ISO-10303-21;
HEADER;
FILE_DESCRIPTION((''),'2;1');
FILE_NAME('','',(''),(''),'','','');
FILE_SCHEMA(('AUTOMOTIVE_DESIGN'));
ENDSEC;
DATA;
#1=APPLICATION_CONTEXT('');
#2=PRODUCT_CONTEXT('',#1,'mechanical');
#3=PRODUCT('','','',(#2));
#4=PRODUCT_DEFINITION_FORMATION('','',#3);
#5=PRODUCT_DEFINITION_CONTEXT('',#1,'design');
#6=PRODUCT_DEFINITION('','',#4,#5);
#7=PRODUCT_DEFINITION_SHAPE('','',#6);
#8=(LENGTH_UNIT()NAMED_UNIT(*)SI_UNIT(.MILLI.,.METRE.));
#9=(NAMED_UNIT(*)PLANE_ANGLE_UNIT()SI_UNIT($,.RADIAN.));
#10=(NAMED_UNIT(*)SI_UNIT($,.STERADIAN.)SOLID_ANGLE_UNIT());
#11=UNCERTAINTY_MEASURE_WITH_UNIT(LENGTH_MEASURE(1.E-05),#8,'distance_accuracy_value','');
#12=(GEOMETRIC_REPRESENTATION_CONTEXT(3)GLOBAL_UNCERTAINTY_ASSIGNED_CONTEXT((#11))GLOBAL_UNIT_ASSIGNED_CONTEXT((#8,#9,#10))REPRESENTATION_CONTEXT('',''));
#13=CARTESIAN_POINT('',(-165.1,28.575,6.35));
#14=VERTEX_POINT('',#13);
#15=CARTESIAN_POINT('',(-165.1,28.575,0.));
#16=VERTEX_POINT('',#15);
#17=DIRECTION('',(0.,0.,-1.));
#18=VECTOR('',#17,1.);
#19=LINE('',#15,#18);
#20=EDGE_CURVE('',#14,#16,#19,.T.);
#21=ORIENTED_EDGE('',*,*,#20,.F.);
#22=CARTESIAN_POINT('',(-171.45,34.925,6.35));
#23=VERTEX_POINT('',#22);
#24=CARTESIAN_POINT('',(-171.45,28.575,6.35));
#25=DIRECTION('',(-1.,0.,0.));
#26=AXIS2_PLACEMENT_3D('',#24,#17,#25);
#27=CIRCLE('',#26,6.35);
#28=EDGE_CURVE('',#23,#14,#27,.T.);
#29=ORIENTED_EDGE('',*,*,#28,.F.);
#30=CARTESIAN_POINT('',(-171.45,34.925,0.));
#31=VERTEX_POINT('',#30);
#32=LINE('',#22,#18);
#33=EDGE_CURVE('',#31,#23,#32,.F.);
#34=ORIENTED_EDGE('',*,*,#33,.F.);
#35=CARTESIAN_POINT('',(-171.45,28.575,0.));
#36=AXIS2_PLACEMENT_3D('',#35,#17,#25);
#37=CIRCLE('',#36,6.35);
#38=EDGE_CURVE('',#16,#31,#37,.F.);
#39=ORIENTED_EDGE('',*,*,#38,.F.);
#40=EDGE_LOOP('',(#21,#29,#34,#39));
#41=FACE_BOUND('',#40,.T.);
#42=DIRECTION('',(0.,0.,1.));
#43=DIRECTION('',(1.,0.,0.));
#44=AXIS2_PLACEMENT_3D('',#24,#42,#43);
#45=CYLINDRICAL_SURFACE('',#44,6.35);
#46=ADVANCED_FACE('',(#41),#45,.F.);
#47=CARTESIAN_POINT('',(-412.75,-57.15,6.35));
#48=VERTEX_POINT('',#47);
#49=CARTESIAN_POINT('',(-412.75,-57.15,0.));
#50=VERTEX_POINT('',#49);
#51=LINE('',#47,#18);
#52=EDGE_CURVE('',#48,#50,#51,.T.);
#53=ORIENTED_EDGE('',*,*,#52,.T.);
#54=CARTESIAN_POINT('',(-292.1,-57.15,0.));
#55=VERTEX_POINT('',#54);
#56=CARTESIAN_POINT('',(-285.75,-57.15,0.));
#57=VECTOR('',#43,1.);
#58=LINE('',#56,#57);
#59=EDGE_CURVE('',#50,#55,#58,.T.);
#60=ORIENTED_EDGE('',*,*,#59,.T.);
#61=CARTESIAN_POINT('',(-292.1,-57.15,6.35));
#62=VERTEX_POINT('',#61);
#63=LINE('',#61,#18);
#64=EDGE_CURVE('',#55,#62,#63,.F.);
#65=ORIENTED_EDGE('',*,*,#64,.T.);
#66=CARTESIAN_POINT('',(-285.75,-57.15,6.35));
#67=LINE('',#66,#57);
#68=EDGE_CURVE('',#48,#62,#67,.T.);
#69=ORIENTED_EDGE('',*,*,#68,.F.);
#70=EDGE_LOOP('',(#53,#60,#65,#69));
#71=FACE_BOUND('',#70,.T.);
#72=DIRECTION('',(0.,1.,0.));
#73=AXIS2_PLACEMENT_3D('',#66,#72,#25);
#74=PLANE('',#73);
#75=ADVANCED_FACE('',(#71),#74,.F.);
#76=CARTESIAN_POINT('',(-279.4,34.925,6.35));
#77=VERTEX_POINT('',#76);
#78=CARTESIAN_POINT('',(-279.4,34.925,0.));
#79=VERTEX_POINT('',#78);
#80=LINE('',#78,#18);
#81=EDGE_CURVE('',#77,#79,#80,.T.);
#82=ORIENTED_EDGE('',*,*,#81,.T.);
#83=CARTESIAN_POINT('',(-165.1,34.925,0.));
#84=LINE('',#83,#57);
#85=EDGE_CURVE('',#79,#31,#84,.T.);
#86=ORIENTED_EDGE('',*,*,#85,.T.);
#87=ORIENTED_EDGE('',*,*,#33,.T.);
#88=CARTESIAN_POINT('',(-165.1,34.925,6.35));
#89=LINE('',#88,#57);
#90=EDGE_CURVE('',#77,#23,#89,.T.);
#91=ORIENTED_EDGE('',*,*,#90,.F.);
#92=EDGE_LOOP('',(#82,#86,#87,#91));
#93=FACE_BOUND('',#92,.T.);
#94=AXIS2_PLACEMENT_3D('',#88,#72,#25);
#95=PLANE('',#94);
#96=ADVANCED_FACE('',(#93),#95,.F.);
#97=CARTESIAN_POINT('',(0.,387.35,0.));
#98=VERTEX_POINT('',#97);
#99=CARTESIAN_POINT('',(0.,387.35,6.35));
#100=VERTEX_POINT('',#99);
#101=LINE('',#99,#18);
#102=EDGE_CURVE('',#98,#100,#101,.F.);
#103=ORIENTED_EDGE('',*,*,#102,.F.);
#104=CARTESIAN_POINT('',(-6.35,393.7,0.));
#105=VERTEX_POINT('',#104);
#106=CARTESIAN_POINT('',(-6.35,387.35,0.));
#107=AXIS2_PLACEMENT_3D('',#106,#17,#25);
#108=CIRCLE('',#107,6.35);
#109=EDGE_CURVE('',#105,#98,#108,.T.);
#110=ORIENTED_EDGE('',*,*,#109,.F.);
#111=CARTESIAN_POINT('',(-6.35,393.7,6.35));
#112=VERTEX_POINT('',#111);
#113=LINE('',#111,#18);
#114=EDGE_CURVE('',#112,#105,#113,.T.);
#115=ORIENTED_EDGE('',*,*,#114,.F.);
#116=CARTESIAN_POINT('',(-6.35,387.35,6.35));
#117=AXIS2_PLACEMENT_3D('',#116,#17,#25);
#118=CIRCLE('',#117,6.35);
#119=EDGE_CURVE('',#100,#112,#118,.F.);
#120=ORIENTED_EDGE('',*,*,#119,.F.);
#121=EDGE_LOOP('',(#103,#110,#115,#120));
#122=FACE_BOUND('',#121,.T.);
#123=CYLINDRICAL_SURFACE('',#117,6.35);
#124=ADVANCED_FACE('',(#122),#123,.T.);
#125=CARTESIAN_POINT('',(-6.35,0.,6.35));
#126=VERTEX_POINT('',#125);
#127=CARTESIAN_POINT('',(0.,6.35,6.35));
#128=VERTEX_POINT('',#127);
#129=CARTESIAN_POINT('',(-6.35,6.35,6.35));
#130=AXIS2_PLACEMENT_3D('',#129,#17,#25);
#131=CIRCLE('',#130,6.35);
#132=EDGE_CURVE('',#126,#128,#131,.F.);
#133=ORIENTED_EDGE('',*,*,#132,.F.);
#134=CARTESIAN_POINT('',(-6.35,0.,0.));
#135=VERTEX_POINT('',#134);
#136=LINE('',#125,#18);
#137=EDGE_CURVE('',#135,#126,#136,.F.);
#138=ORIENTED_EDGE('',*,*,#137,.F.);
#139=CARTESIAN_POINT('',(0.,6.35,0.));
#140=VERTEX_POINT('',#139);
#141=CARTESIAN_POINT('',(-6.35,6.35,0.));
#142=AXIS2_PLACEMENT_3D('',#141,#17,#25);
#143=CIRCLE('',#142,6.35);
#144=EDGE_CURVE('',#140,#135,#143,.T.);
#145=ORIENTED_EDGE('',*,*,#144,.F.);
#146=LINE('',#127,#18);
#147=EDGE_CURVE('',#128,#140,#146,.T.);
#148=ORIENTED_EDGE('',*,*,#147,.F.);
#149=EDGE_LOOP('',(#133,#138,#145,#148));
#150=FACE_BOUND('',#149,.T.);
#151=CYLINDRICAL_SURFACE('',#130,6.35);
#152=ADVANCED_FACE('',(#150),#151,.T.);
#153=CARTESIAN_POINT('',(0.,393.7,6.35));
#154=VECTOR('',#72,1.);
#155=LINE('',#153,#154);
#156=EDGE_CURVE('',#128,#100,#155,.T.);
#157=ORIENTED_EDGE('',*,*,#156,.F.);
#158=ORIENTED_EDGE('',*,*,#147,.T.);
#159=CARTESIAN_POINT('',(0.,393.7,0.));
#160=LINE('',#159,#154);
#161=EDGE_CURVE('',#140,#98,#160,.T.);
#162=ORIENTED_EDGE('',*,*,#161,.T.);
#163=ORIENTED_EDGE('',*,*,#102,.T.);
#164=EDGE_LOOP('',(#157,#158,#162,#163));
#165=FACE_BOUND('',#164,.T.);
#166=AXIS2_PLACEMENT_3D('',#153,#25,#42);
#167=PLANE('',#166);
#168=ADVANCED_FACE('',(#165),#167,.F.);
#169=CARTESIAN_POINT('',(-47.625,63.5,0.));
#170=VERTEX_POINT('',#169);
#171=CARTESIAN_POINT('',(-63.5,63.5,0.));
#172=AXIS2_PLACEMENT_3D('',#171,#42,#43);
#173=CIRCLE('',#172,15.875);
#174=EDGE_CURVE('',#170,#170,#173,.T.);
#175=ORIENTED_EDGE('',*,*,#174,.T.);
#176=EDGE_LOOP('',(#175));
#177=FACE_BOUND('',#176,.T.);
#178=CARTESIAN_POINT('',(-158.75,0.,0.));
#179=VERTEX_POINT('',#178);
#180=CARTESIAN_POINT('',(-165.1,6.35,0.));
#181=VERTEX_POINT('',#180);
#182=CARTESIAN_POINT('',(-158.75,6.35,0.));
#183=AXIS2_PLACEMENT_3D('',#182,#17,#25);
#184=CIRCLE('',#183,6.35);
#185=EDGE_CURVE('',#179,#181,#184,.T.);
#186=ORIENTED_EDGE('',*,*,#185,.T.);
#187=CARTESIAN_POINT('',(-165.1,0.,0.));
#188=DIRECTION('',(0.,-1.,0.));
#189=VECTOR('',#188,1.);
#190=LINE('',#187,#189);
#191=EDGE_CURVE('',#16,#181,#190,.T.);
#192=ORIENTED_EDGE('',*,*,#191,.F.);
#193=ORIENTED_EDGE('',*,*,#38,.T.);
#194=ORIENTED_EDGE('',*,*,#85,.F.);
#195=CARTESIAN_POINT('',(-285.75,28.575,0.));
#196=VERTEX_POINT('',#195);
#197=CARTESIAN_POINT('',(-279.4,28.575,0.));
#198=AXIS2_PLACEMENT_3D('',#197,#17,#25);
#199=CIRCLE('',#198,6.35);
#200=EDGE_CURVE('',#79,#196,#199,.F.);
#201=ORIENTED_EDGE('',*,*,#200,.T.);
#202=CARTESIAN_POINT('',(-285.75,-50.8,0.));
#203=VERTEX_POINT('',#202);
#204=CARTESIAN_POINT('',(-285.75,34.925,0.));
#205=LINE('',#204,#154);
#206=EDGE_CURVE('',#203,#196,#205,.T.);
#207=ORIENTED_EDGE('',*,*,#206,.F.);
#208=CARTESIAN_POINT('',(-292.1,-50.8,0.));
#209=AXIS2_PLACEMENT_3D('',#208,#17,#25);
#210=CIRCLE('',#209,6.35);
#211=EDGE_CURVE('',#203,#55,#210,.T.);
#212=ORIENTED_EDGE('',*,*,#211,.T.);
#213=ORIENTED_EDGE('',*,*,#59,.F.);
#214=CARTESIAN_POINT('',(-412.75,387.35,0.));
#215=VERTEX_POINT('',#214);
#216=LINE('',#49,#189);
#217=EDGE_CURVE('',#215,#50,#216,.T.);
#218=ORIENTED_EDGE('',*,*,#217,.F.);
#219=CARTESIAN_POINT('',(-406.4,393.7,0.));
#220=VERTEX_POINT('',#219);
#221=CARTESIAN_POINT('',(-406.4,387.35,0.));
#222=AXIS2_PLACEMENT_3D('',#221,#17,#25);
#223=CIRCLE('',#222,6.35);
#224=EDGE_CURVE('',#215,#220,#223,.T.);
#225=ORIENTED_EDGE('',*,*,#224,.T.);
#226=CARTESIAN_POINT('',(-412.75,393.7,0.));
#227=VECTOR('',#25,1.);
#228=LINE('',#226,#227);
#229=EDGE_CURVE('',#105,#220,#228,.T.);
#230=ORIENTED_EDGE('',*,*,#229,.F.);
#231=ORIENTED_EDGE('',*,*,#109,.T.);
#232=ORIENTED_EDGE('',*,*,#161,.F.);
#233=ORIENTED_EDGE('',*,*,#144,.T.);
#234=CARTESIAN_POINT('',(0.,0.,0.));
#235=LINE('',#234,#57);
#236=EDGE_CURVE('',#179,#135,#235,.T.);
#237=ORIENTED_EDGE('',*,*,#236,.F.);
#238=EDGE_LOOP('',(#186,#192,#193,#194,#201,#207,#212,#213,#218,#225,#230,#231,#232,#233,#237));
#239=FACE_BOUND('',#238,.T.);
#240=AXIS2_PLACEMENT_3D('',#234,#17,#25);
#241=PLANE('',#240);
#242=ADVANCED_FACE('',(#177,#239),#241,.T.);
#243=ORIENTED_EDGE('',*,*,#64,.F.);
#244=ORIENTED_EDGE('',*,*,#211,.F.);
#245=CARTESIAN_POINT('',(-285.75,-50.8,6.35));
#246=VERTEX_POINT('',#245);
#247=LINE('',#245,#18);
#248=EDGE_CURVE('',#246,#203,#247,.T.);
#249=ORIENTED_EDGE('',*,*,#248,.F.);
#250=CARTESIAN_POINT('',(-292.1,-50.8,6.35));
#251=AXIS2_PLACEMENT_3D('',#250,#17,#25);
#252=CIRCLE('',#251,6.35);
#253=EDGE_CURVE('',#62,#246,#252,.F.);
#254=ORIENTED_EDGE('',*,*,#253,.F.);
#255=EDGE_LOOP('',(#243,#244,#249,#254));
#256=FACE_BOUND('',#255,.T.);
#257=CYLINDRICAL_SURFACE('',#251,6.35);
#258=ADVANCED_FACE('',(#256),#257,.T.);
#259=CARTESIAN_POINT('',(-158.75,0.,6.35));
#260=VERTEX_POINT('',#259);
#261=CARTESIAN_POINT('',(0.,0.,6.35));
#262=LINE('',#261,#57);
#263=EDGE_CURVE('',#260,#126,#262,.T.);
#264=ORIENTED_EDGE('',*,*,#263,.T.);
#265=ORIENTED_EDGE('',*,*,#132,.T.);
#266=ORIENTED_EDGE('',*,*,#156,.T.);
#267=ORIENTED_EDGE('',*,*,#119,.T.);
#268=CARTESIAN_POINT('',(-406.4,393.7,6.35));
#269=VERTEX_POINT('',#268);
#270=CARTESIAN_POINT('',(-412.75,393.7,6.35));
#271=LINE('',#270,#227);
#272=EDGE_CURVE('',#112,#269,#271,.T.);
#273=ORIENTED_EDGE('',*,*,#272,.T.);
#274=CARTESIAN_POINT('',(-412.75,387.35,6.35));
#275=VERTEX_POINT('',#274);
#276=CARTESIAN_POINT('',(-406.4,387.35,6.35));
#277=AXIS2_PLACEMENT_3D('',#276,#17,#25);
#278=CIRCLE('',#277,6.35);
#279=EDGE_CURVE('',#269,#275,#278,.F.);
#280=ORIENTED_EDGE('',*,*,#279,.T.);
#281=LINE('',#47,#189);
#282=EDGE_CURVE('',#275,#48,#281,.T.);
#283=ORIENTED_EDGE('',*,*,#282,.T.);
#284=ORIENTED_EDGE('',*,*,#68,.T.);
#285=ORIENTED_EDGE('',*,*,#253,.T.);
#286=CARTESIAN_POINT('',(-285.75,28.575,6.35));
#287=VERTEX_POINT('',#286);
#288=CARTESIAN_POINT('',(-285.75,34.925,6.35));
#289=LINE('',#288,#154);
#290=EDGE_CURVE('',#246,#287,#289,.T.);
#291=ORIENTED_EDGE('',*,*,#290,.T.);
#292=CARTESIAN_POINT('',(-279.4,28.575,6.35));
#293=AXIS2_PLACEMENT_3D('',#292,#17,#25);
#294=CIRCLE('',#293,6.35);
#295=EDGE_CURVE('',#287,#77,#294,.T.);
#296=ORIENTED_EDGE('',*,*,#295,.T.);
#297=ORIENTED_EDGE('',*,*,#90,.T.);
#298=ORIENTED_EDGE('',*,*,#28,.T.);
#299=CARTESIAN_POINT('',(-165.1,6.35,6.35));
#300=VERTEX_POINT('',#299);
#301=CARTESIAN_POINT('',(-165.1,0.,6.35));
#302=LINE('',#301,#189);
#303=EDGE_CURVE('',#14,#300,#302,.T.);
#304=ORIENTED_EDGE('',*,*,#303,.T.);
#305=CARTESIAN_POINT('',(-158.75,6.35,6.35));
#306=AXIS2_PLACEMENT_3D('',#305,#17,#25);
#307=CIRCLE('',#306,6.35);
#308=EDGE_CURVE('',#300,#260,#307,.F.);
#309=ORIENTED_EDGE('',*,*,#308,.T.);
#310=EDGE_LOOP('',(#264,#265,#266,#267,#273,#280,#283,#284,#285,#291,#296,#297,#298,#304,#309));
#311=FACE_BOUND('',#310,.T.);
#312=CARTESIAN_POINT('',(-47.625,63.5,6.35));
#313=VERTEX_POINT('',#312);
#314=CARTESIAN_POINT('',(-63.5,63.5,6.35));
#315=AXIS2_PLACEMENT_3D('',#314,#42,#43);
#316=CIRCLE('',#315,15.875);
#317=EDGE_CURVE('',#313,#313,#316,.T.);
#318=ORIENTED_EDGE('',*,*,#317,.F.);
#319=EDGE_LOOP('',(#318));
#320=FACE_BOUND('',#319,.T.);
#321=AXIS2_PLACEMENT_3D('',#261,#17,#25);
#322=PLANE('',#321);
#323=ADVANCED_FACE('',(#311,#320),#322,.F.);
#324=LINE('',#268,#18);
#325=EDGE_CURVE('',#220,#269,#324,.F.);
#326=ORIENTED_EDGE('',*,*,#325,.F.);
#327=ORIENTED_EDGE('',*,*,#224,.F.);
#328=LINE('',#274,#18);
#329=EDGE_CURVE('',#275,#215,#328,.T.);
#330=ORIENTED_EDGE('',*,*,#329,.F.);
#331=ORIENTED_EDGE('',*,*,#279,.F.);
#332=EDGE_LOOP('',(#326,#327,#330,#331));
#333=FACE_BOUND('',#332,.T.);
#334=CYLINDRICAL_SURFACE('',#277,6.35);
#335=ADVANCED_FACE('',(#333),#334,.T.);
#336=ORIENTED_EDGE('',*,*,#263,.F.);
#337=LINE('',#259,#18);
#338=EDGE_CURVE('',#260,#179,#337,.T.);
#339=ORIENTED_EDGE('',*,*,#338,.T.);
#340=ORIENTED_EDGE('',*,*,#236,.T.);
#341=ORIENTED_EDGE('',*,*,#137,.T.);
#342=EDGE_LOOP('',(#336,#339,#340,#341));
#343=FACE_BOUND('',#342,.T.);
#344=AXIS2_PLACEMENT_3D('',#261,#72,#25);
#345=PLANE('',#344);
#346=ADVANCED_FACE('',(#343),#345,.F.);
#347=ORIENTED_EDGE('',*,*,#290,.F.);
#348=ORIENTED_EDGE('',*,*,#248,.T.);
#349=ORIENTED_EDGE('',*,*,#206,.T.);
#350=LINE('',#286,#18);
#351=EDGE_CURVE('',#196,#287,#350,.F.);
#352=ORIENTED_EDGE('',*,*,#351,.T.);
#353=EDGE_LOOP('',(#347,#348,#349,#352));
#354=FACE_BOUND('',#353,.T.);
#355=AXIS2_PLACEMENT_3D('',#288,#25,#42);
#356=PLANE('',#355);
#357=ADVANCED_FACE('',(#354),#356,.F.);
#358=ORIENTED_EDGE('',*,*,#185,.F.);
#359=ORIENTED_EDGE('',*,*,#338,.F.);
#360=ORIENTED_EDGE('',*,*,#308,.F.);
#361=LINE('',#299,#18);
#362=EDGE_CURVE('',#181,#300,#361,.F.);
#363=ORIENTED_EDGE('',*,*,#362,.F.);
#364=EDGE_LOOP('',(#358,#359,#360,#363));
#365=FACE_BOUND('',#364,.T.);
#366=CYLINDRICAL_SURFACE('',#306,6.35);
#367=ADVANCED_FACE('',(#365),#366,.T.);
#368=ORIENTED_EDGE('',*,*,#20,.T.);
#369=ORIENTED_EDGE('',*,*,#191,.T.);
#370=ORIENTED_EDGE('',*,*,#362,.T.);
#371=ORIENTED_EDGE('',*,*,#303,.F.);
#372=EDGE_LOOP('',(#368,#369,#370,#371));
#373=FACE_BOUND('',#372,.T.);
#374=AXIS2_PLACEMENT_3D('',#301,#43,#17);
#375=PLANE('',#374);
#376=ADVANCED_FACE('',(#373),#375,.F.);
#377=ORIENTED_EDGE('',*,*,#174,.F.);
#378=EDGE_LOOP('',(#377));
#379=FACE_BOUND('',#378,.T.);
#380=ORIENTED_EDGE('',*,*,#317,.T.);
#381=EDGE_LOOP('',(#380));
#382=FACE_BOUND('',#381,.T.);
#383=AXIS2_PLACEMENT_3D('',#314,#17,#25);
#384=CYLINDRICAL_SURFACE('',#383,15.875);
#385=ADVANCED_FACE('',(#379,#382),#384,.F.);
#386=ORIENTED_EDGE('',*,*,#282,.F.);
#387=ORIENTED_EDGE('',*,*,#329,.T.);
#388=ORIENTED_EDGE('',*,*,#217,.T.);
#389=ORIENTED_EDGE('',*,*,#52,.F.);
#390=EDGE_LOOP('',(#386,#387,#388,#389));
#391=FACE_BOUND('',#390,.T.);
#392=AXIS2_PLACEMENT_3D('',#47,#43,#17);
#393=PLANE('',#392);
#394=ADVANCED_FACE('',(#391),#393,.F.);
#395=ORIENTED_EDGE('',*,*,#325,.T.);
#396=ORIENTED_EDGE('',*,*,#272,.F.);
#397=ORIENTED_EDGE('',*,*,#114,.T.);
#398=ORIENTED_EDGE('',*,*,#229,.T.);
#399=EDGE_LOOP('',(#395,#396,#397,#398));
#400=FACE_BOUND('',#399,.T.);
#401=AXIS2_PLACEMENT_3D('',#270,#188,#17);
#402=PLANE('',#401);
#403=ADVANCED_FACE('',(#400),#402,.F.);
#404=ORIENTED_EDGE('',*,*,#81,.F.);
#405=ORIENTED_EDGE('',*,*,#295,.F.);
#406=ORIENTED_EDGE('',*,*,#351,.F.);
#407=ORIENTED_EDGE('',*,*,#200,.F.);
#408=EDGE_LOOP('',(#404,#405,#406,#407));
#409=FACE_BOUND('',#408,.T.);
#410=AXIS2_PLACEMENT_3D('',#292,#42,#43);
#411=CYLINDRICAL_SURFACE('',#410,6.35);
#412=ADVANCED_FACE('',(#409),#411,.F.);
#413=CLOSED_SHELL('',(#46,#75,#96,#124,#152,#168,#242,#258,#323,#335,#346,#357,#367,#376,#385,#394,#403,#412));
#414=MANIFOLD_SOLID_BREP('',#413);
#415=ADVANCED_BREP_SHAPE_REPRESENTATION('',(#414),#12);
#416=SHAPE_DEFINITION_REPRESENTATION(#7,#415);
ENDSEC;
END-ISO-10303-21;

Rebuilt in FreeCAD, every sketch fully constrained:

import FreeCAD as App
import Part
import Sketcher
from FreeCAD import Vector
Q = App.Units.Quantity


def edges_at(feature, points):
    """Names of the edges that pass closest to the given points."""
    edges = feature.Shape.Edges
    near = lambda p: min(range(len(edges)), key=lambda i: edges[i].distToShape(Part.Vertex(*p))[0])
    return sorted({f"Edge{near(p) + 1}" for p in points})

doc = App.newDocument("Part")
body = doc.addObject("PartDesign::Body", "Body")

sketch1 = body.newObject("Sketcher::SketchObject", "Sketch")
sketch1.AttachmentSupport = (doc.getObject("XY_Plane"), [""])
sketch1.MapMode = "FlatFace"
sketch1.addGeometry(Part.LineSegment(Vector(-165, 0, 0), Vector(0, 0, 0)), False)
sketch1.addGeometry(Part.LineSegment(Vector(0, 0, 0), Vector(0, 394, 0)), False)
sketch1.addGeometry(Part.LineSegment(Vector(0, 394, 0), Vector(-413, 394, 0)), False)
sketch1.addGeometry(Part.LineSegment(Vector(-413, 394, 0), Vector(-413, -57, 0)), False)
sketch1.addGeometry(Part.LineSegment(Vector(-413, -57, 0), Vector(-286, -57, 0)), False)
sketch1.addGeometry(Part.LineSegment(Vector(-286, -57, 0), Vector(-286, 35, 0)), False)
sketch1.addGeometry(Part.LineSegment(Vector(-286, 35, 0), Vector(-165, 35, 0)), False)
sketch1.addGeometry(Part.LineSegment(Vector(-165, 35, 0), Vector(-165, 0, 0)), False)
sketch1.addGeometry(Part.Circle(Vector(-64, 64, 0), Vector(0, 0, 1), 16), False)
sketch1.addConstraint(Sketcher.Constraint("Coincident", 0, 2, 1, 1))
sketch1.addConstraint(Sketcher.Constraint("Coincident", 1, 2, 2, 1))
sketch1.addConstraint(Sketcher.Constraint("Coincident", 2, 2, 3, 1))
sketch1.addConstraint(Sketcher.Constraint("Coincident", 3, 2, 4, 1))
sketch1.addConstraint(Sketcher.Constraint("Coincident", 4, 2, 5, 1))
sketch1.addConstraint(Sketcher.Constraint("Coincident", 5, 2, 6, 1))
sketch1.addConstraint(Sketcher.Constraint("Coincident", 6, 2, 7, 1))
sketch1.addConstraint(Sketcher.Constraint("Coincident", 7, 2, 0, 1))
sketch1.addConstraint(Sketcher.Constraint("Horizontal", 0))
sketch1.addConstraint(Sketcher.Constraint("Vertical", 1))
sketch1.addConstraint(Sketcher.Constraint("Horizontal", 2))
sketch1.addConstraint(Sketcher.Constraint("Vertical", 3))
sketch1.addConstraint(Sketcher.Constraint("Horizontal", 4))
sketch1.addConstraint(Sketcher.Constraint("Vertical", 5))
sketch1.addConstraint(Sketcher.Constraint("Horizontal", 6))
sketch1.addConstraint(Sketcher.Constraint("Vertical", 7))
sketch1.addConstraint(Sketcher.Constraint("Coincident", 0, 2, -1, 1))
sketch1.addConstraint(Sketcher.Constraint("Diameter", 8, Q("1.25 in")))
sketch1.addConstraint(Sketcher.Constraint("DistanceX", 4, 1, 4, 2, Q("5 in")))
sketch1.addConstraint(Sketcher.Constraint("DistanceX", 0, 1, 0, 2, Q("6.5 in")))
sketch1.addConstraint(Sketcher.Constraint("DistanceY", 1, 1, 1, 2, Q("15.5 in")))
sketch1.addConstraint(Sketcher.Constraint("DistanceY", 8, 3, 1, 2, Q("13 in")))
sketch1.addConstraint(Sketcher.Constraint("DistanceX", 6, 2, 8, 3, Q("4 in")))
sketch1.addConstraint(Sketcher.Constraint("DistanceX", 2, 2, 2, 1, Q("16.25 in")))
sketch1.addConstraint(Sketcher.Constraint("DistanceY", 3, 2, 3, 1, Q("17.75 in")))
sketch1.addConstraint(Sketcher.Constraint("DistanceY", 5, 1, 5, 2, Q("3.625 in")))
pad1 = body.newObject("PartDesign::Pad", "Pad")
pad1.Profile = sketch1
pad1.Length = Q("0.25 in")
doc.recompute()

fillet = body.newObject("PartDesign::Fillet", "Fillet")
fillet.Base = (pad1, edges_at(pad1, [
    (-412.75, 393.7, 3.175),
    (0, 393.7, 3.175),
    (0, 0, 3.175),
    (-165.1, 0, 3.175),
    (-165.1, 34.925, 3.175),
    (-285.75, 34.925, 3.175),
    (-285.75, -57.15, 3.175),
]))
fillet.Radius = Q("0.25 in")

doc.recompute()
